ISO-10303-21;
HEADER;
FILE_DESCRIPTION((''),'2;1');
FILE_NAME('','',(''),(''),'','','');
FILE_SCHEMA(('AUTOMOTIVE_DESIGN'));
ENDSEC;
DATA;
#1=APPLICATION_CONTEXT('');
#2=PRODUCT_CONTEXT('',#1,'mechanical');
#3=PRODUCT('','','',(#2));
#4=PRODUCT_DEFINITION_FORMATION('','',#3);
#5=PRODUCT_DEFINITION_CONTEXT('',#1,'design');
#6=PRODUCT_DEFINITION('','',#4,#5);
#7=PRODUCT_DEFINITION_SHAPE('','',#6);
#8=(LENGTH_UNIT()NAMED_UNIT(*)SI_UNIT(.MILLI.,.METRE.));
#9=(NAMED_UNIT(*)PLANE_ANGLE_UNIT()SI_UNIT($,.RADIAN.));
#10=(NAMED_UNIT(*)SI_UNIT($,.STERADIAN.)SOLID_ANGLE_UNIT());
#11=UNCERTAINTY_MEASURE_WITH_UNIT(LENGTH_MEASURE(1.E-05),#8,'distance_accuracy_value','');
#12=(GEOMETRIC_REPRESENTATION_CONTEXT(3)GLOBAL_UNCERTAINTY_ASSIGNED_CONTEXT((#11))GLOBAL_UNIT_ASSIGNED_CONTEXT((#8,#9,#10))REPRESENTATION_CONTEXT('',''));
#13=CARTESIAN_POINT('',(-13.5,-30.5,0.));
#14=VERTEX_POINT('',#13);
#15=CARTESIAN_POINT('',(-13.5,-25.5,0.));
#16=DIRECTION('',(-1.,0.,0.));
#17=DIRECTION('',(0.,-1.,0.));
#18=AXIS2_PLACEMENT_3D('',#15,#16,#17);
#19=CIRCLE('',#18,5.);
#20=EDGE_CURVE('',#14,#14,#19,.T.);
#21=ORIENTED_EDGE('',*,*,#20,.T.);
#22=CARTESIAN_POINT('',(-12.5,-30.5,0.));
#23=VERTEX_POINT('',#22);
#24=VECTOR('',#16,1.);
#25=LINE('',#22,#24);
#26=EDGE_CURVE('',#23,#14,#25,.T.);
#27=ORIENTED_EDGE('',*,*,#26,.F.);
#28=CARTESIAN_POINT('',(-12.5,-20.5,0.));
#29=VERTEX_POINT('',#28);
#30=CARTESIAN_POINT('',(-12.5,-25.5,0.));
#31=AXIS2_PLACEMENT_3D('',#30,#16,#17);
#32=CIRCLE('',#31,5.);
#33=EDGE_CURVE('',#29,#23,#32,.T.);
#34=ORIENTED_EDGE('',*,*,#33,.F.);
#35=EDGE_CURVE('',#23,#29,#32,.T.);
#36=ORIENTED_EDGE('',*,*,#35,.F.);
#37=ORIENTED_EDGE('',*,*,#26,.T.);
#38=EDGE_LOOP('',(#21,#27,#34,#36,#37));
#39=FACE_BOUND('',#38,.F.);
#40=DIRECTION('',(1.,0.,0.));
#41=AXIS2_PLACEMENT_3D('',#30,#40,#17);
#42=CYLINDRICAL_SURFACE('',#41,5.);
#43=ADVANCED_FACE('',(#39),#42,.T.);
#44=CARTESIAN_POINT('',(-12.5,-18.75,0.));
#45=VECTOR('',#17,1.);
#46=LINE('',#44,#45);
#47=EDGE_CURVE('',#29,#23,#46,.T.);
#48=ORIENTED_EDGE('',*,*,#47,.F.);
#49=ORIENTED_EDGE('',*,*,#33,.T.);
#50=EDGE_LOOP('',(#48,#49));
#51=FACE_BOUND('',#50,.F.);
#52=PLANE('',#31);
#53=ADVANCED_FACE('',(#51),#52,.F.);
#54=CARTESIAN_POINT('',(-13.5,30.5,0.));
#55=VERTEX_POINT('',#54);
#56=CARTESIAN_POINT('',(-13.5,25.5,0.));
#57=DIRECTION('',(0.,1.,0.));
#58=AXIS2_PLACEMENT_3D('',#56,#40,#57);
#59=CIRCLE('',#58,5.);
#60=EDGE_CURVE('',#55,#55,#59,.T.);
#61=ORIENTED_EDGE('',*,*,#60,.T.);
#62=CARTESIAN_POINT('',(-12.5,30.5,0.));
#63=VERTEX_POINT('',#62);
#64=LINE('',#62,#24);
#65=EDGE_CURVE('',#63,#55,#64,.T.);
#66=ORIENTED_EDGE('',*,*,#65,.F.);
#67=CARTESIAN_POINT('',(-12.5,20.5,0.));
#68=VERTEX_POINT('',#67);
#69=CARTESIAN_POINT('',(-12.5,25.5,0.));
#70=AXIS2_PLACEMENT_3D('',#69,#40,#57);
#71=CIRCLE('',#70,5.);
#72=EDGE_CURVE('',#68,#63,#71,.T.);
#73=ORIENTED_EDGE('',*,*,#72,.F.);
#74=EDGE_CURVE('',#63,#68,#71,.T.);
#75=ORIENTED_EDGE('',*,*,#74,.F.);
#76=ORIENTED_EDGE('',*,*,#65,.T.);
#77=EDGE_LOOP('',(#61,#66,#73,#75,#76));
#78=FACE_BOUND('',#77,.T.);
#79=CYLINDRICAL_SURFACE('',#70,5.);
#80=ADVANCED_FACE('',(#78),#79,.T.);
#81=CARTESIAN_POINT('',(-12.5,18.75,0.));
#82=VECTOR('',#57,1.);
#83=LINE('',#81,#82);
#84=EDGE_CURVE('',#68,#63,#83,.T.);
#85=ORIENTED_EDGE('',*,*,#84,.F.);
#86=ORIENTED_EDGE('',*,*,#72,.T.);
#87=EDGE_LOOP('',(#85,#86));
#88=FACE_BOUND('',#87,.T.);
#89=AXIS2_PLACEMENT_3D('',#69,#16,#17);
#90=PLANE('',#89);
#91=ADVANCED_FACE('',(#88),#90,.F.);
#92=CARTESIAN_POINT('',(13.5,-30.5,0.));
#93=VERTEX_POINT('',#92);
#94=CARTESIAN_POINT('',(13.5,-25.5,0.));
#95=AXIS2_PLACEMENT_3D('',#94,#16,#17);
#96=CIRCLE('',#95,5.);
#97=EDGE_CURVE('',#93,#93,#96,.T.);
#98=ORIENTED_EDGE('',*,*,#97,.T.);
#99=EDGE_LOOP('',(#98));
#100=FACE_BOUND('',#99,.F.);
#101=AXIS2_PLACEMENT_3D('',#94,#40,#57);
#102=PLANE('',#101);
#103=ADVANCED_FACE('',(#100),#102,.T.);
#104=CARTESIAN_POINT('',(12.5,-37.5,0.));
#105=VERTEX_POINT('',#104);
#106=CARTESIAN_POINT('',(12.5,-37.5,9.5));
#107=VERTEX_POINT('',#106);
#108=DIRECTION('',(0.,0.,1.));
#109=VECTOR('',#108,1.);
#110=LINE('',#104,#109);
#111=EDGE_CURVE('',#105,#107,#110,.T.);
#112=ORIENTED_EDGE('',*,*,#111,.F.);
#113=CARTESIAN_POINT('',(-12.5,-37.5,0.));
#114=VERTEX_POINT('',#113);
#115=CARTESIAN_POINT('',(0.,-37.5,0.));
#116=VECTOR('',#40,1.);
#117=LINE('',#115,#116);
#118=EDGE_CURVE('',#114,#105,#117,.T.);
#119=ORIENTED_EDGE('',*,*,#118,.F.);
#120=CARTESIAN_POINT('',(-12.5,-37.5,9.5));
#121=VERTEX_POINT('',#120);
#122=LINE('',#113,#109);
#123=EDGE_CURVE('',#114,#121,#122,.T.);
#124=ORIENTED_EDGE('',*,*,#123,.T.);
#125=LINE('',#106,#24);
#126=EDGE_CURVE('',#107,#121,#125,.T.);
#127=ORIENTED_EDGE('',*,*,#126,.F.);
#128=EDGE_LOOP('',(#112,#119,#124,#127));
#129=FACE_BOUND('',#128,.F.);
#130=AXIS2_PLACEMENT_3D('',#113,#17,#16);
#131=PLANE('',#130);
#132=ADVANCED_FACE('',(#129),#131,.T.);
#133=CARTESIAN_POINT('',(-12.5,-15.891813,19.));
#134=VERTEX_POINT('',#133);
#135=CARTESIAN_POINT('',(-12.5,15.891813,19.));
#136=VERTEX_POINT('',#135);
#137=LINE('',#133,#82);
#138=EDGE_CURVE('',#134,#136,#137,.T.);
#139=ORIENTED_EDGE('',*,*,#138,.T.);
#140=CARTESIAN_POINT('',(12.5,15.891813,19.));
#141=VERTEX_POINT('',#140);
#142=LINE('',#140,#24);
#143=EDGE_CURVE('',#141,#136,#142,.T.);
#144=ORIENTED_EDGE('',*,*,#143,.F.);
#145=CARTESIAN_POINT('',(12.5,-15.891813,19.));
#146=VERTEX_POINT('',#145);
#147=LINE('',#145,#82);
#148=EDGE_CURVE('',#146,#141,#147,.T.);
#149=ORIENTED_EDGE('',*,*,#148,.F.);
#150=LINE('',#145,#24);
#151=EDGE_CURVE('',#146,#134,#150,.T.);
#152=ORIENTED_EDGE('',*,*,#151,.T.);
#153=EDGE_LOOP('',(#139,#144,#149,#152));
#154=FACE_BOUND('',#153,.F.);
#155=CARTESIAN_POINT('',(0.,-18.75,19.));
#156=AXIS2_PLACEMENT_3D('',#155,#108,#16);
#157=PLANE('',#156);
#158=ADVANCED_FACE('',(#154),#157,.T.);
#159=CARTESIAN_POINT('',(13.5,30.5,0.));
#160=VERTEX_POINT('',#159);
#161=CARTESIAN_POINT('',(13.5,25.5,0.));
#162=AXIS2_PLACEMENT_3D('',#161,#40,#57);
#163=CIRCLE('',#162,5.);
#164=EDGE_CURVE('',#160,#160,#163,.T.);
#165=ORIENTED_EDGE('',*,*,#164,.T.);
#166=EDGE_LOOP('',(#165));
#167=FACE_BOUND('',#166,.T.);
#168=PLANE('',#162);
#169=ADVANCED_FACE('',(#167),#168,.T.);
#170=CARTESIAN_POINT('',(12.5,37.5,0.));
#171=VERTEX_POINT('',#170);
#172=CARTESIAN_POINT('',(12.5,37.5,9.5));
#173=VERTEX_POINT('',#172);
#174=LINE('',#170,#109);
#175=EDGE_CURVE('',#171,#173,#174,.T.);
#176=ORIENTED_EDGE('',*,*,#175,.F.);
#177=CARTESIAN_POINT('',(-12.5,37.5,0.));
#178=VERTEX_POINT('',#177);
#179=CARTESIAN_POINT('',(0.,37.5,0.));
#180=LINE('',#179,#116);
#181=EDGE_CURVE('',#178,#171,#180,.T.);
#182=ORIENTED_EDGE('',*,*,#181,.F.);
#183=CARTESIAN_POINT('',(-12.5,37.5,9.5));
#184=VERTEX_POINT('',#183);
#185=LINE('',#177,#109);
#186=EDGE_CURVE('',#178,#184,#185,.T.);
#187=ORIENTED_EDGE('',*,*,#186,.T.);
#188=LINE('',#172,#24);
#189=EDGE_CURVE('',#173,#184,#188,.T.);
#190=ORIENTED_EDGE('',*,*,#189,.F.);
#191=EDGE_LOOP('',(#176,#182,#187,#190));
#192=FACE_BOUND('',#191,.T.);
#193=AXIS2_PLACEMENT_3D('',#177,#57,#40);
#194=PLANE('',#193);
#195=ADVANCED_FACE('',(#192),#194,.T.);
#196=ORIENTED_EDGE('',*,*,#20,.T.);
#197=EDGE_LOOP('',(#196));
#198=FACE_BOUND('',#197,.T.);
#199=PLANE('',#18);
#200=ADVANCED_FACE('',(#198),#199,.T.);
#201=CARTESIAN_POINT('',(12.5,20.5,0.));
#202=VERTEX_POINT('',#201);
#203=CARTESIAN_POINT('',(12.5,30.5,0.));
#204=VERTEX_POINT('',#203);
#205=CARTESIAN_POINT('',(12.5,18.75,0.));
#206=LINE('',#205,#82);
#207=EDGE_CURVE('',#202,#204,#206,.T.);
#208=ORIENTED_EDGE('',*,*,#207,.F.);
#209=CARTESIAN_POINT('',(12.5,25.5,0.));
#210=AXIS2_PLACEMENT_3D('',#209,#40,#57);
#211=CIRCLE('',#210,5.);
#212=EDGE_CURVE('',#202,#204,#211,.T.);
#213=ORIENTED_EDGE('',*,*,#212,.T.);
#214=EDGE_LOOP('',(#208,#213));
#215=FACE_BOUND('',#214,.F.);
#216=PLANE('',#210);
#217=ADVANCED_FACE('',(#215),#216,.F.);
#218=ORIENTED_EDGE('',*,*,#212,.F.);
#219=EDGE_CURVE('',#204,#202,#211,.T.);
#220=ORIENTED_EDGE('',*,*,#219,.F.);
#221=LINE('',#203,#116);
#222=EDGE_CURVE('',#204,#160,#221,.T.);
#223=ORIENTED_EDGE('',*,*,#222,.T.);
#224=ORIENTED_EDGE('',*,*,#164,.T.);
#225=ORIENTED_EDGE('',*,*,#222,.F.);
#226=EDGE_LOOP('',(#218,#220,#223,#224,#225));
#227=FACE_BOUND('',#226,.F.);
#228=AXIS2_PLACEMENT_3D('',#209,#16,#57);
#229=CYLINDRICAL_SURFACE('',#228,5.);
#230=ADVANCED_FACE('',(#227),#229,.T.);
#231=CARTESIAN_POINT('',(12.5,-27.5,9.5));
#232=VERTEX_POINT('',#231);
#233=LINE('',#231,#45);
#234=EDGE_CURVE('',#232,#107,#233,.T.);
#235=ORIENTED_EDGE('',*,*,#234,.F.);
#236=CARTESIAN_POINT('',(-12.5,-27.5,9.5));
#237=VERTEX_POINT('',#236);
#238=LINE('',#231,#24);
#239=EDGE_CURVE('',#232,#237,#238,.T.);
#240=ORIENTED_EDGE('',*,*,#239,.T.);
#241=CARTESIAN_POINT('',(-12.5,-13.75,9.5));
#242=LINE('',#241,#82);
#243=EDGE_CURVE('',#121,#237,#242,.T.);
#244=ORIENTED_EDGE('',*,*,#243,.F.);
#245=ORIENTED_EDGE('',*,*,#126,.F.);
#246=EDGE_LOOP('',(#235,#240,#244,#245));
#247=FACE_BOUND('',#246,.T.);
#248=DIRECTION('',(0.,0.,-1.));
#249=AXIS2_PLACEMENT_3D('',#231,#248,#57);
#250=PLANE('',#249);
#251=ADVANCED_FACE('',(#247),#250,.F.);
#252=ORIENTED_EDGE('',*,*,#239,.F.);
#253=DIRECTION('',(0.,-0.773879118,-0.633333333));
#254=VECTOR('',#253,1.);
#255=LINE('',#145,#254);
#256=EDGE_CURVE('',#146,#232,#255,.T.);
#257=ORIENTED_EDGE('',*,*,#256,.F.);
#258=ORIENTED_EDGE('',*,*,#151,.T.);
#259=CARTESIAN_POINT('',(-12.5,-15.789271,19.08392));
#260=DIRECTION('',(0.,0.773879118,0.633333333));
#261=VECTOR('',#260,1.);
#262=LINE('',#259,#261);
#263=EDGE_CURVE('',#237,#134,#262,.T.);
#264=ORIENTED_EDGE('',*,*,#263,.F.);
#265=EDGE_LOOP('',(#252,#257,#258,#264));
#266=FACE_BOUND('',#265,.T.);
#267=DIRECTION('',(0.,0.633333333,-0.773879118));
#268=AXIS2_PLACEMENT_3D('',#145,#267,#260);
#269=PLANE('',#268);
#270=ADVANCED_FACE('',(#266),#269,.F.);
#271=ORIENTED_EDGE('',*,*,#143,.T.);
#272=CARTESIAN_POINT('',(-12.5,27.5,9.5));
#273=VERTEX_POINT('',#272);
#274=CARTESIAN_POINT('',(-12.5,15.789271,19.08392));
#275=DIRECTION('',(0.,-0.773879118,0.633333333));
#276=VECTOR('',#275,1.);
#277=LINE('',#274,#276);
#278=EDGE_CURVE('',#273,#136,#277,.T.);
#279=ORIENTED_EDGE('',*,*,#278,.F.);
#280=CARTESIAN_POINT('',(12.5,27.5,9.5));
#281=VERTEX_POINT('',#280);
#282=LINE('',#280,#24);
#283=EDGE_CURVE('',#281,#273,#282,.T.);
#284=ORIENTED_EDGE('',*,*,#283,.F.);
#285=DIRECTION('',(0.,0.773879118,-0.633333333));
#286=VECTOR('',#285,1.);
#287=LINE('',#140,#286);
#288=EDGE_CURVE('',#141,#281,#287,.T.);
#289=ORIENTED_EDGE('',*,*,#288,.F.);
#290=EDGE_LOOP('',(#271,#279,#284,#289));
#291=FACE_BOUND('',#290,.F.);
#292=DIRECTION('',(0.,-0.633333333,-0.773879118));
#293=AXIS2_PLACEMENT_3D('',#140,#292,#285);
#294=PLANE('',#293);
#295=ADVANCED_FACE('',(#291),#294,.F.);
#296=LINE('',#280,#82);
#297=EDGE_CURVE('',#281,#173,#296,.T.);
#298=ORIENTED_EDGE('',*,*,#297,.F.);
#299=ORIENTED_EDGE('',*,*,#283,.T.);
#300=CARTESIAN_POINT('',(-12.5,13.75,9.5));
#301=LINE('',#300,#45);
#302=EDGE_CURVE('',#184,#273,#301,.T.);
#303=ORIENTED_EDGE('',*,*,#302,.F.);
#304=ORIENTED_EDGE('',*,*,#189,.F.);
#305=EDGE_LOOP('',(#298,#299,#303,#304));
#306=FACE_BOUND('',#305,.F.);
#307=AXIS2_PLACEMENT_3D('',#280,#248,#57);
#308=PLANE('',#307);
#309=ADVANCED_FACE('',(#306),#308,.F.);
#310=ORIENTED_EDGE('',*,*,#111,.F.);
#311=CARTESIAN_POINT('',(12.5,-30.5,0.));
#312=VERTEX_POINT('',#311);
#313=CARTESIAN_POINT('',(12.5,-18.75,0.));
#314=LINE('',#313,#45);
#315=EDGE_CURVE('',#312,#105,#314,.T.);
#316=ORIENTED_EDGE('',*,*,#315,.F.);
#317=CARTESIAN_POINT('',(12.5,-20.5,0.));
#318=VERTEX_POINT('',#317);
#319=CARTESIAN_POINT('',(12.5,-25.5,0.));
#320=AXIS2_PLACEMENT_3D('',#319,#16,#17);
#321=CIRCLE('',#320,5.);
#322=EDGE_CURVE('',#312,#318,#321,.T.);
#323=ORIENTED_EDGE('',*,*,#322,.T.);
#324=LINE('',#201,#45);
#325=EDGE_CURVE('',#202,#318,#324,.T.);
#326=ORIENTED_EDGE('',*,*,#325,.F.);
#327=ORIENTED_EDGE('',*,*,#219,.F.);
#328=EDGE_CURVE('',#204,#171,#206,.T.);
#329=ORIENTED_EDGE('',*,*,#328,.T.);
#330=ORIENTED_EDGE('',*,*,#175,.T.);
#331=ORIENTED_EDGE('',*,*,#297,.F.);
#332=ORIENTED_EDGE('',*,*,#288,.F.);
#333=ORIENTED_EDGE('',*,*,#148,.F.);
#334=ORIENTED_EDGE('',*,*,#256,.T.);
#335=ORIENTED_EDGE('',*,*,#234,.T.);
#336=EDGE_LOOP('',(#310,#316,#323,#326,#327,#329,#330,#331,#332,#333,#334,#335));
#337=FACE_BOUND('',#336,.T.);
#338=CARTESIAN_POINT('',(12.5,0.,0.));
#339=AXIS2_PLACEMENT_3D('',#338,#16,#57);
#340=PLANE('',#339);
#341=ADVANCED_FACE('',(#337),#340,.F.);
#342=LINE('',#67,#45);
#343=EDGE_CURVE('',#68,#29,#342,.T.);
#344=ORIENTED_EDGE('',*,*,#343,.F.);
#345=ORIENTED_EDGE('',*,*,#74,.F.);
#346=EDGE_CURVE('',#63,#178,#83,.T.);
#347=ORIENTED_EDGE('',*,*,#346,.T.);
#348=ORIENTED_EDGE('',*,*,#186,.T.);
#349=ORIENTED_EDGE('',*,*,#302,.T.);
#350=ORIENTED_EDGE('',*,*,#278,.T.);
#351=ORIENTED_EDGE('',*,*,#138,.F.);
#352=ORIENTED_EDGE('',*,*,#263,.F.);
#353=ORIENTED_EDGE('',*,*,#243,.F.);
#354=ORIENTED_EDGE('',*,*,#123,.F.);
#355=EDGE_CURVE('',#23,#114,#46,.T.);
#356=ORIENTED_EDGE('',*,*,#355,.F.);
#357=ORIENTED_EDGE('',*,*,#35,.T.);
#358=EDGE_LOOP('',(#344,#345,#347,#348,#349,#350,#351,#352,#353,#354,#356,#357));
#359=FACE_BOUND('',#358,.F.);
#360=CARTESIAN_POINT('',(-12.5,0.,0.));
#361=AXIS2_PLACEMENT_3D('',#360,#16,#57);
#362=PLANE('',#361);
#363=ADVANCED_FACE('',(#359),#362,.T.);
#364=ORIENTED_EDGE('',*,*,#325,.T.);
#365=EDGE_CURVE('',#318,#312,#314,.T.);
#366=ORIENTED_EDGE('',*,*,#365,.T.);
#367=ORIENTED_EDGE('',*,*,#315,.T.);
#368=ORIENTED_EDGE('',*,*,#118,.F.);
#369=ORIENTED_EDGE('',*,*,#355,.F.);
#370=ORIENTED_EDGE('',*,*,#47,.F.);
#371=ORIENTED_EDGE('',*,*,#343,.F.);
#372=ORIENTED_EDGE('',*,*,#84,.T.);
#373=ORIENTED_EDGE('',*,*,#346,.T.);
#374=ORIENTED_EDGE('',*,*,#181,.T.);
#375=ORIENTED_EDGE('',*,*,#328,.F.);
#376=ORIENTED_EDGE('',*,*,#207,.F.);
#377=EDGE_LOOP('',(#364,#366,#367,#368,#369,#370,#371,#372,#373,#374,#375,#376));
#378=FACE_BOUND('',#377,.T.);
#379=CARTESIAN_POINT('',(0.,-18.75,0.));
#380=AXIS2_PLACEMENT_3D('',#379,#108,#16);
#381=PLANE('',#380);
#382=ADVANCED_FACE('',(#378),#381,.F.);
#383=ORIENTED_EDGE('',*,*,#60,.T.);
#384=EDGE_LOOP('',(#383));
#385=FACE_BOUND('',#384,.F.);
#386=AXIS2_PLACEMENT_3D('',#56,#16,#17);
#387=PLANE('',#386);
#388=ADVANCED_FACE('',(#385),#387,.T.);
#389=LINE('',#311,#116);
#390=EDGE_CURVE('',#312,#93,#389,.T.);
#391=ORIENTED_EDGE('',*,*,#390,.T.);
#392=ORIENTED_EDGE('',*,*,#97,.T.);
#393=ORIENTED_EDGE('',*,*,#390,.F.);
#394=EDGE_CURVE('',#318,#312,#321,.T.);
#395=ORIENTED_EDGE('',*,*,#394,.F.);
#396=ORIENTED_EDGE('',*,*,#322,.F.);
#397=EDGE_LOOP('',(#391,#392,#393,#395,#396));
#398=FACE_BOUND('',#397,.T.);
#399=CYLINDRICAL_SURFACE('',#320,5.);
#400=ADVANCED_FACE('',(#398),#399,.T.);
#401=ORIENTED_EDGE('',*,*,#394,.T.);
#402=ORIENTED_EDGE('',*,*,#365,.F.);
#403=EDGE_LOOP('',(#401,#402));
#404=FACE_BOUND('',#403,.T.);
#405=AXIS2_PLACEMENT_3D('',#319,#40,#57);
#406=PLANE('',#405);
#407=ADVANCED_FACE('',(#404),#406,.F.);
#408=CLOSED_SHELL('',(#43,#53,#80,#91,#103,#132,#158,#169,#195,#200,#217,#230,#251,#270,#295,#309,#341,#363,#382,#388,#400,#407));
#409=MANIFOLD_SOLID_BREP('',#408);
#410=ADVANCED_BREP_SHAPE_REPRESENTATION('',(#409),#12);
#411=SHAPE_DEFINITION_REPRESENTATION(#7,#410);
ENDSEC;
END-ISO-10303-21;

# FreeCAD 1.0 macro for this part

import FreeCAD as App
import Part
import Sketcher

V = App.Vector
Q = App.Units.Quantity


def add_polygon(sketch, points):
    """Adds a closed chain of lines whose ends are joined by coincident constraints."""
    first, n = sketch.GeometryCount, len(points)
    for a, b in zip(points, points[1:] + points[:1]):
        sketch.addGeometry(Part.LineSegment(App.Vector(*a, 0), App.Vector(*b, 0)), False)
    for i in range(n):
        sketch.addConstraint(Sketcher.Constraint("Coincident", first + i, 2, first + (i + 1) % n, 1))

doc = App.newDocument("Part")
body = doc.addObject("PartDesign::Body", "Body")

# Sketch on XY plane
sketch1 = body.newObject("Sketcher::SketchObject", "Sketch")
sketch1.AttachmentSupport = (doc.getObject("XY_Plane"), [""])
sketch1.MapMode = "FlatFace"
add_polygon(sketch1, [(-12.5, 37.5), (-12.5, 0), (12.5, 0), (12.5, 37.5)])  # lines 0-3
sketch1.addConstraint([
    Sketcher.Constraint("Vertical", 0),
    Sketcher.Constraint("Horizontal", 1),
    Sketcher.Constraint("Vertical", 2),
    Sketcher.Constraint("Horizontal", 3),
    Sketcher.Constraint("Symmetric", 0, 2, 1, 2, -1, 1),
    Sketcher.Constraint("DistanceX", 1, 1, 1, 2, Q("25 mm")),
    Sketcher.Constraint("DistanceY", 0, 2, 0, 1, Q("37.5 mm")),
])
pad1 = body.newObject("PartDesign::Pad", "Pad")
pad1.Profile = sketch1
pad1.Length = 19

# Sketch on YZ plane
sketch2 = body.newObject("Sketcher::SketchObject", "Sketch001")
sketch2.AttachmentSupport = (doc.getObject("YZ_Plane"), [""])
sketch2.MapMode = "FlatFace"
sketch2.AttachmentOffset = App.Placement(V(0, 0, 12.5), App.Rotation())
add_polygon(sketch2, [(27.5, 9.5), (37.5, 9.5), (37.5, 19), (15.891813, 19)])  # lines 0-3
sketch2.addConstraint([
    Sketcher.Constraint("Horizontal", 0),
    Sketcher.Constraint("Vertical", 1),
    Sketcher.Constraint("Horizontal", 2),
    Sketcher.Constraint("DistanceX", 0, 1, 0, 2, Q("10 mm")),
    Sketcher.Constraint("Distance", 3, Q("15 mm")),
    Sketcher.Constraint("DistanceY", 1, 1, 1, 2, Q("9.5 mm")),
    Sketcher.Constraint("DistanceY", -1, 1, 1, 2, Q("19 mm")),
    Sketcher.Constraint("DistanceX", -1, 1, 0, 2, Q("37.5 mm")),
])
pocket1 = body.newObject("PartDesign::Pocket", "Pocket")
pocket1.Profile = sketch2
pocket1.Type = "ThroughAll"
body2 = doc.addObject("PartDesign::Body", "Body001")

# Sketch on YZ plane
sketch3 = body2.newObject("Sketcher::SketchObject", "Sketch002")
sketch3.AttachmentSupport = (doc.getObject("YZ_Plane001"), [""])
sketch3.MapMode = "FlatFace"
sketch3.AttachmentOffset = App.Placement(V(0, 0, 12.5), App.Rotation())
sketch3.addGeometry(Part.Circle(V(25.5, 0, 0), V(0, 0, 1), 5), False)
sketch3.addConstraint([
    Sketcher.Constraint("PointOnObject", 0, 3, -1),
    Sketcher.Constraint("Diameter", 0, Q("10 mm")),
    Sketcher.Constraint("DistanceX", -1, 1, 0, 3, Q("25.5 mm")),
])
pad2 = body2.newObject("PartDesign::Pad", "Pad001")
pad2.Profile = sketch3
pad2.Length = 1
body3 = doc.addObject("PartDesign::Body", "Body002")
doc.recompute()

body3.BaseFeature = body
doc.recompute()

body4 = doc.addObject("PartDesign::Body", "Body003")
body4.BaseFeature = body2
boolean = body3.newObject("PartDesign::Boolean", "Boolean")
boolean.Type = "Fuse"
boolean.addObjects([body4])
doc.recompute()

mirroring = doc.addObject("Part::Mirroring", "Mirroring")
mirroring.Source = body
mirroring.Base = V(0, 0, 0)
mirroring.Normal = V(1, 0, 0)
body5 = doc.addObject("PartDesign::Body", "Body004")
body5.BaseFeature = mirroring
boolean2 = body3.newObject("PartDesign::Boolean", "Boolean001")
boolean2.Type = "Fuse"
boolean2.addObjects([body5])
doc.recompute()

mirroring2 = doc.addObject("Part::Mirroring", "Mirroring001")
mirroring2.Source = body2
mirroring2.Base = V(0, 0, 0)
mirroring2.Normal = V(1, 0, 0)
body6 = doc.addObject("PartDesign::Body", "Body005")
body6.BaseFeature = mirroring2
boolean3 = body3.newObject("PartDesign::Boolean", "Boolean002")
boolean3.Type = "Fuse"
boolean3.addObjects([body6])
doc.recompute()
body7 = doc.addObject("PartDesign::Body", "Body006")
doc.recompute()

body7.BaseFeature = body3
doc.recompute()

mirroring3 = doc.addObject("Part::Mirroring", "Mirroring002")
mirroring3.Source = body3
mirroring3.Base = V(0, 0, 0)
mirroring3.Normal = V(0, -1, 0)
body8 = doc.addObject("PartDesign::Body", "Body007")
body8.BaseFeature = mirroring3
boolean4 = body7.newObject("PartDesign::Boolean", "Boolean003")
boolean4.Type = "Fuse"
boolean4.addObjects([body8])
doc.recompute()
mirroring.Visibility = False
mirroring2.Visibility = False
mirroring3.Visibility = False

doc.recompute()
